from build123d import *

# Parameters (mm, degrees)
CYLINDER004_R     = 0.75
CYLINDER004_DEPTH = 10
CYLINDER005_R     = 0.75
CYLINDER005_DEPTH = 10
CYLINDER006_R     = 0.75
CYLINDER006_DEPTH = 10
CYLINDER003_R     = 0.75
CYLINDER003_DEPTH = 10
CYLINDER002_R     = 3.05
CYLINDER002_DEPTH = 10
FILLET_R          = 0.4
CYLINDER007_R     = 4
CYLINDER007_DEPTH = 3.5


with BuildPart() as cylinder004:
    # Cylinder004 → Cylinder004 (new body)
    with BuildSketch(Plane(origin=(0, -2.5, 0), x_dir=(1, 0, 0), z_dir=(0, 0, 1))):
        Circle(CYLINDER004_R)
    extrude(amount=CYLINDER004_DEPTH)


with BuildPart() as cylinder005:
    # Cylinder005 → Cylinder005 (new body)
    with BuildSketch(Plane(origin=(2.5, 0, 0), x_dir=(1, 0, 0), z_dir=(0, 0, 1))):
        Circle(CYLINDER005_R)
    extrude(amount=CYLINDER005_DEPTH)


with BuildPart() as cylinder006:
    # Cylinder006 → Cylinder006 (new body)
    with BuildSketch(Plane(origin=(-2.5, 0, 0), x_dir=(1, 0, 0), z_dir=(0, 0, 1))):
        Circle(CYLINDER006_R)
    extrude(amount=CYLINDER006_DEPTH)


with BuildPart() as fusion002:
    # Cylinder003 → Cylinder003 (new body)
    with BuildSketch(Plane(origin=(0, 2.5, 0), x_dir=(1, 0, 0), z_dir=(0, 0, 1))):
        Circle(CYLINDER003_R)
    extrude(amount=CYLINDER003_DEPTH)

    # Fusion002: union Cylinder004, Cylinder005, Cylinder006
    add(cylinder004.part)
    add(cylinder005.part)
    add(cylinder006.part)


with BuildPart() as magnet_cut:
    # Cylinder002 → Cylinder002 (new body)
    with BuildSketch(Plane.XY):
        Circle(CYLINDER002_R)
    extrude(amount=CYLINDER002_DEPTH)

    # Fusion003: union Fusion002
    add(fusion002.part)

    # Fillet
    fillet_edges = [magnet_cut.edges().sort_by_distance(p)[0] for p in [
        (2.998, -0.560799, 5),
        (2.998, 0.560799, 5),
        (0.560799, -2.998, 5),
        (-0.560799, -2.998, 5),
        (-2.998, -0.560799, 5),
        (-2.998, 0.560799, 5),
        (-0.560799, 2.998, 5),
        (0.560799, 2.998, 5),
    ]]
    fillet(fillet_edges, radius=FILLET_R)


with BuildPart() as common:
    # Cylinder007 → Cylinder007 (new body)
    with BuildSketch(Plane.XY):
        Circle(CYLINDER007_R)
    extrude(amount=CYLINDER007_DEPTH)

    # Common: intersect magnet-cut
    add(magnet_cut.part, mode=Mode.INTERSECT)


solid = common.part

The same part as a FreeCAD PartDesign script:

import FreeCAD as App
import Part
import Sketcher
Q = App.Units.Quantity


def edges_at(feature, points):
    """Names of the edges that pass closest to the given points."""
    edges = feature.Shape.Edges
    near = lambda p: min(range(len(edges)), key=lambda i: edges[i].distToShape(Part.Vertex(*p))[0])
    return sorted({f"Edge{near(p) + 1}" for p in points})

doc = App.newDocument("Part")
params = doc.addObject("Spreadsheet::Sheet", "Params")
for row, (alias, value) in enumerate([
    ("sketch1_diameter", "1.5 mm"),
    ("pad1_length", "10 mm"),
    ("sketch2_diameter", "1.5 mm"),
    ("pad2_length", "10 mm"),
    ("sketch3_diameter", "1.5 mm"),
    ("pad3_length", "10 mm"),
    ("sketch4_diameter", "1.5 mm"),
    ("pad4_length", "10 mm"),
    ("sketch5_diameter", "6.1 mm"),
    ("pad5_length", "10 mm"),
    ("fillet_radius", "0.4 mm"),
    ("sketch6_diameter", "8 mm"),
    ("pad6_length", "3.5 mm"),
], start=1):
    params.set(f"A{row}", alias)
    params.set(f"B{row}", "=" + value)
    params.setAlias(f"B{row}", alias)

body = doc.addObject("PartDesign::Body", "Body")

# Sketch on XY plane
sketch1 = doc.addObject("Sketcher::SketchObject", "Sketch")
body.addObject(sketch1)
sketch1.AttachmentSupport = (doc.XY_Plane, [""])
sketch1.MapMode = "FlatFace"
sketch1.addGeometry(Part.Circle(App.Vector(0, -2.5, 0), App.Vector(0, 0, 1), 0.8), False)
sketch1.addConstraint(Sketcher.Constraint("PointOnObject", 0, 3, -2))
sketch1.addConstraint(Sketcher.Constraint("Diameter", 0, Q("1.5 mm")))
sketch1.addConstraint(Sketcher.Constraint("DistanceY", 0, 3, -1, 1, Q("2.5 mm")))
sketch1.setExpression("Constraints[1]", "Params.sketch1_diameter")
pad1 = doc.addObject("PartDesign::Pad", "Pad")
body.addObject(pad1)
pad1.Profile = sketch1
pad1.setExpression("Length", "Params.pad1_length")
body2 = doc.addObject("PartDesign::Body", "Body001")

# Sketch on XY plane
sketch2 = doc.addObject("Sketcher::SketchObject", "Sketch001")
body2.addObject(sketch2)
sketch2.AttachmentSupport = (doc.getObject("XY_Plane001"), [""])
sketch2.MapMode = "FlatFace"
sketch2.addGeometry(Part.Circle(App.Vector(2.5, 0, 0), App.Vector(0, 0, 1), 0.8), False)
sketch2.addConstraint(Sketcher.Constraint("PointOnObject", 0, 3, -1))
sketch2.addConstraint(Sketcher.Constraint("Diameter", 0, Q("1.5 mm")))
sketch2.addConstraint(Sketcher.Constraint("DistanceX", -1, 1, 0, 3, Q("2.5 mm")))
sketch2.setExpression("Constraints[1]", "Params.sketch2_diameter")
pad2 = doc.addObject("PartDesign::Pad", "Pad001")
body2.addObject(pad2)
pad2.Profile = sketch2
pad2.setExpression("Length", "Params.pad2_length")
body3 = doc.addObject("PartDesign::Body", "Body002")

# Sketch on XY plane
sketch3 = doc.addObject("Sketcher::SketchObject", "Sketch002")
body3.addObject(sketch3)
sketch3.AttachmentSupport = (doc.getObject("XY_Plane002"), [""])
sketch3.MapMode = "FlatFace"
sketch3.addGeometry(Part.Circle(App.Vector(-2.5, 0, 0), App.Vector(0, 0, 1), 0.8), False)
sketch3.addConstraint(Sketcher.Constraint("PointOnObject", 0, 3, -1))
sketch3.addConstraint(Sketcher.Constraint("Diameter", 0, Q("1.5 mm")))
sketch3.addConstraint(Sketcher.Constraint("DistanceX", 0, 3, -1, 1, Q("2.5 mm")))
sketch3.setExpression("Constraints[1]", "Params.sketch3_diameter")
pad3 = doc.addObject("PartDesign::Pad", "Pad002")
body3.addObject(pad3)
pad3.Profile = sketch3
pad3.setExpression("Length", "Params.pad3_length")
body4 = doc.addObject("PartDesign::Body", "Body003")
body4.AllowCompound = True

# Sketch on XY plane
sketch4 = doc.addObject("Sketcher::SketchObject", "Sketch003")
body4.addObject(sketch4)
sketch4.AttachmentSupport = (doc.getObject("XY_Plane003"), [""])
sketch4.MapMode = "FlatFace"
sketch4.addGeometry(Part.Circle(App.Vector(0, 2.5, 0), App.Vector(0, 0, 1), 0.8), False)
sketch4.addConstraint(Sketcher.Constraint("PointOnObject", 0, 3, -2))
sketch4.addConstraint(Sketcher.Constraint("Diameter", 0, Q("1.5 mm")))
sketch4.addConstraint(Sketcher.Constraint("DistanceY", -1, 1, 0, 3, Q("2.5 mm")))
sketch4.setExpression("Constraints[1]", "Params.sketch4_diameter")
pad4 = doc.addObject("PartDesign::Pad", "Pad003")
body4.addObject(pad4)
pad4.Profile = sketch4
pad4.setExpression("Length", "Params.pad4_length")
doc.recompute()

boolean = doc.addObject("PartDesign::Boolean", "Boolean")
body4.addObject(boolean)
boolean.Type = "Fuse"
boolean.addObjects([body])
doc.recompute()

boolean2 = doc.addObject("PartDesign::Boolean", "Boolean001")
body4.addObject(boolean2)
boolean2.Type = "Fuse"
boolean2.addObjects([body2])
doc.recompute()

boolean3 = doc.addObject("PartDesign::Boolean", "Boolean002")
body4.addObject(boolean3)
boolean3.Type = "Fuse"
boolean3.addObjects([body3])
body5 = doc.addObject("PartDesign::Body", "Body004")

# Sketch on XY plane
sketch5 = doc.addObject("Sketcher::SketchObject", "Sketch004")
body5.addObject(sketch5)
sketch5.AttachmentSupport = (doc.getObject("XY_Plane004"), [""])
sketch5.MapMode = "FlatFace"
sketch5.addGeometry(Part.Circle(App.Vector(0, 0, 0), App.Vector(0, 0, 1), 3), False)
sketch5.addConstraint(Sketcher.Constraint("Coincident", 0, 3, -1, 1))
sketch5.addConstraint(Sketcher.Constraint("Diameter", 0, Q("6.1 mm")))
sketch5.setExpression("Constraints[1]", "Params.sketch5_diameter")
pad5 = doc.addObject("PartDesign::Pad", "Pad004")
body5.addObject(pad5)
pad5.Profile = sketch5
pad5.setExpression("Length", "Params.pad5_length")
doc.recompute()

boolean4 = doc.addObject("PartDesign::Boolean", "Boolean003")
body5.addObject(boolean4)
boolean4.Type = "Fuse"
boolean4.addObjects([body4])
doc.recompute()

fillet = doc.addObject("PartDesign::Fillet", "Fillet")
body5.addObject(fillet)
fillet.Base = (boolean4, edges_at(boolean4, [
    (2.998, -0.561, 5),
    (2.998, 0.561, 5),
    (0.561, -2.998, 5),
    (-0.561, -2.998, 5),
    (-2.998, -0.561, 5),
    (-2.998, 0.561, 5),
    (-0.561, 2.998, 5),
    (0.561, 2.998, 5),
]))
fillet.setExpression("Radius", "Params.fillet_radius")
body6 = doc.addObject("PartDesign::Body", "Body005")

# Sketch on XY plane
sketch6 = doc.addObject("Sketcher::SketchObject", "Sketch005")
body6.addObject(sketch6)
sketch6.AttachmentSupport = (doc.getObject("XY_Plane005"), [""])
sketch6.MapMode = "FlatFace"
sketch6.addGeometry(Part.Circle(App.Vector(0, 0, 0), App.Vector(0, 0, 1), 4), False)
sketch6.addConstraint(Sketcher.Constraint("Coincident", 0, 3, -1, 1))
sketch6.addConstraint(Sketcher.Constraint("Diameter", 0, Q("8 mm")))
sketch6.setExpression("Constraints[1]", "Params.sketch6_diameter")
pad6 = doc.addObject("PartDesign::Pad", "Pad005")
body6.addObject(pad6)
pad6.Profile = sketch6
pad6.setExpression("Length", "Params.pad6_length")
doc.recompute()

boolean5 = doc.addObject("PartDesign::Boolean", "Boolean004")
body6.addObject(boolean5)
boolean5.Type = "Common"
boolean5.addObjects([body5])

doc.recompute()
